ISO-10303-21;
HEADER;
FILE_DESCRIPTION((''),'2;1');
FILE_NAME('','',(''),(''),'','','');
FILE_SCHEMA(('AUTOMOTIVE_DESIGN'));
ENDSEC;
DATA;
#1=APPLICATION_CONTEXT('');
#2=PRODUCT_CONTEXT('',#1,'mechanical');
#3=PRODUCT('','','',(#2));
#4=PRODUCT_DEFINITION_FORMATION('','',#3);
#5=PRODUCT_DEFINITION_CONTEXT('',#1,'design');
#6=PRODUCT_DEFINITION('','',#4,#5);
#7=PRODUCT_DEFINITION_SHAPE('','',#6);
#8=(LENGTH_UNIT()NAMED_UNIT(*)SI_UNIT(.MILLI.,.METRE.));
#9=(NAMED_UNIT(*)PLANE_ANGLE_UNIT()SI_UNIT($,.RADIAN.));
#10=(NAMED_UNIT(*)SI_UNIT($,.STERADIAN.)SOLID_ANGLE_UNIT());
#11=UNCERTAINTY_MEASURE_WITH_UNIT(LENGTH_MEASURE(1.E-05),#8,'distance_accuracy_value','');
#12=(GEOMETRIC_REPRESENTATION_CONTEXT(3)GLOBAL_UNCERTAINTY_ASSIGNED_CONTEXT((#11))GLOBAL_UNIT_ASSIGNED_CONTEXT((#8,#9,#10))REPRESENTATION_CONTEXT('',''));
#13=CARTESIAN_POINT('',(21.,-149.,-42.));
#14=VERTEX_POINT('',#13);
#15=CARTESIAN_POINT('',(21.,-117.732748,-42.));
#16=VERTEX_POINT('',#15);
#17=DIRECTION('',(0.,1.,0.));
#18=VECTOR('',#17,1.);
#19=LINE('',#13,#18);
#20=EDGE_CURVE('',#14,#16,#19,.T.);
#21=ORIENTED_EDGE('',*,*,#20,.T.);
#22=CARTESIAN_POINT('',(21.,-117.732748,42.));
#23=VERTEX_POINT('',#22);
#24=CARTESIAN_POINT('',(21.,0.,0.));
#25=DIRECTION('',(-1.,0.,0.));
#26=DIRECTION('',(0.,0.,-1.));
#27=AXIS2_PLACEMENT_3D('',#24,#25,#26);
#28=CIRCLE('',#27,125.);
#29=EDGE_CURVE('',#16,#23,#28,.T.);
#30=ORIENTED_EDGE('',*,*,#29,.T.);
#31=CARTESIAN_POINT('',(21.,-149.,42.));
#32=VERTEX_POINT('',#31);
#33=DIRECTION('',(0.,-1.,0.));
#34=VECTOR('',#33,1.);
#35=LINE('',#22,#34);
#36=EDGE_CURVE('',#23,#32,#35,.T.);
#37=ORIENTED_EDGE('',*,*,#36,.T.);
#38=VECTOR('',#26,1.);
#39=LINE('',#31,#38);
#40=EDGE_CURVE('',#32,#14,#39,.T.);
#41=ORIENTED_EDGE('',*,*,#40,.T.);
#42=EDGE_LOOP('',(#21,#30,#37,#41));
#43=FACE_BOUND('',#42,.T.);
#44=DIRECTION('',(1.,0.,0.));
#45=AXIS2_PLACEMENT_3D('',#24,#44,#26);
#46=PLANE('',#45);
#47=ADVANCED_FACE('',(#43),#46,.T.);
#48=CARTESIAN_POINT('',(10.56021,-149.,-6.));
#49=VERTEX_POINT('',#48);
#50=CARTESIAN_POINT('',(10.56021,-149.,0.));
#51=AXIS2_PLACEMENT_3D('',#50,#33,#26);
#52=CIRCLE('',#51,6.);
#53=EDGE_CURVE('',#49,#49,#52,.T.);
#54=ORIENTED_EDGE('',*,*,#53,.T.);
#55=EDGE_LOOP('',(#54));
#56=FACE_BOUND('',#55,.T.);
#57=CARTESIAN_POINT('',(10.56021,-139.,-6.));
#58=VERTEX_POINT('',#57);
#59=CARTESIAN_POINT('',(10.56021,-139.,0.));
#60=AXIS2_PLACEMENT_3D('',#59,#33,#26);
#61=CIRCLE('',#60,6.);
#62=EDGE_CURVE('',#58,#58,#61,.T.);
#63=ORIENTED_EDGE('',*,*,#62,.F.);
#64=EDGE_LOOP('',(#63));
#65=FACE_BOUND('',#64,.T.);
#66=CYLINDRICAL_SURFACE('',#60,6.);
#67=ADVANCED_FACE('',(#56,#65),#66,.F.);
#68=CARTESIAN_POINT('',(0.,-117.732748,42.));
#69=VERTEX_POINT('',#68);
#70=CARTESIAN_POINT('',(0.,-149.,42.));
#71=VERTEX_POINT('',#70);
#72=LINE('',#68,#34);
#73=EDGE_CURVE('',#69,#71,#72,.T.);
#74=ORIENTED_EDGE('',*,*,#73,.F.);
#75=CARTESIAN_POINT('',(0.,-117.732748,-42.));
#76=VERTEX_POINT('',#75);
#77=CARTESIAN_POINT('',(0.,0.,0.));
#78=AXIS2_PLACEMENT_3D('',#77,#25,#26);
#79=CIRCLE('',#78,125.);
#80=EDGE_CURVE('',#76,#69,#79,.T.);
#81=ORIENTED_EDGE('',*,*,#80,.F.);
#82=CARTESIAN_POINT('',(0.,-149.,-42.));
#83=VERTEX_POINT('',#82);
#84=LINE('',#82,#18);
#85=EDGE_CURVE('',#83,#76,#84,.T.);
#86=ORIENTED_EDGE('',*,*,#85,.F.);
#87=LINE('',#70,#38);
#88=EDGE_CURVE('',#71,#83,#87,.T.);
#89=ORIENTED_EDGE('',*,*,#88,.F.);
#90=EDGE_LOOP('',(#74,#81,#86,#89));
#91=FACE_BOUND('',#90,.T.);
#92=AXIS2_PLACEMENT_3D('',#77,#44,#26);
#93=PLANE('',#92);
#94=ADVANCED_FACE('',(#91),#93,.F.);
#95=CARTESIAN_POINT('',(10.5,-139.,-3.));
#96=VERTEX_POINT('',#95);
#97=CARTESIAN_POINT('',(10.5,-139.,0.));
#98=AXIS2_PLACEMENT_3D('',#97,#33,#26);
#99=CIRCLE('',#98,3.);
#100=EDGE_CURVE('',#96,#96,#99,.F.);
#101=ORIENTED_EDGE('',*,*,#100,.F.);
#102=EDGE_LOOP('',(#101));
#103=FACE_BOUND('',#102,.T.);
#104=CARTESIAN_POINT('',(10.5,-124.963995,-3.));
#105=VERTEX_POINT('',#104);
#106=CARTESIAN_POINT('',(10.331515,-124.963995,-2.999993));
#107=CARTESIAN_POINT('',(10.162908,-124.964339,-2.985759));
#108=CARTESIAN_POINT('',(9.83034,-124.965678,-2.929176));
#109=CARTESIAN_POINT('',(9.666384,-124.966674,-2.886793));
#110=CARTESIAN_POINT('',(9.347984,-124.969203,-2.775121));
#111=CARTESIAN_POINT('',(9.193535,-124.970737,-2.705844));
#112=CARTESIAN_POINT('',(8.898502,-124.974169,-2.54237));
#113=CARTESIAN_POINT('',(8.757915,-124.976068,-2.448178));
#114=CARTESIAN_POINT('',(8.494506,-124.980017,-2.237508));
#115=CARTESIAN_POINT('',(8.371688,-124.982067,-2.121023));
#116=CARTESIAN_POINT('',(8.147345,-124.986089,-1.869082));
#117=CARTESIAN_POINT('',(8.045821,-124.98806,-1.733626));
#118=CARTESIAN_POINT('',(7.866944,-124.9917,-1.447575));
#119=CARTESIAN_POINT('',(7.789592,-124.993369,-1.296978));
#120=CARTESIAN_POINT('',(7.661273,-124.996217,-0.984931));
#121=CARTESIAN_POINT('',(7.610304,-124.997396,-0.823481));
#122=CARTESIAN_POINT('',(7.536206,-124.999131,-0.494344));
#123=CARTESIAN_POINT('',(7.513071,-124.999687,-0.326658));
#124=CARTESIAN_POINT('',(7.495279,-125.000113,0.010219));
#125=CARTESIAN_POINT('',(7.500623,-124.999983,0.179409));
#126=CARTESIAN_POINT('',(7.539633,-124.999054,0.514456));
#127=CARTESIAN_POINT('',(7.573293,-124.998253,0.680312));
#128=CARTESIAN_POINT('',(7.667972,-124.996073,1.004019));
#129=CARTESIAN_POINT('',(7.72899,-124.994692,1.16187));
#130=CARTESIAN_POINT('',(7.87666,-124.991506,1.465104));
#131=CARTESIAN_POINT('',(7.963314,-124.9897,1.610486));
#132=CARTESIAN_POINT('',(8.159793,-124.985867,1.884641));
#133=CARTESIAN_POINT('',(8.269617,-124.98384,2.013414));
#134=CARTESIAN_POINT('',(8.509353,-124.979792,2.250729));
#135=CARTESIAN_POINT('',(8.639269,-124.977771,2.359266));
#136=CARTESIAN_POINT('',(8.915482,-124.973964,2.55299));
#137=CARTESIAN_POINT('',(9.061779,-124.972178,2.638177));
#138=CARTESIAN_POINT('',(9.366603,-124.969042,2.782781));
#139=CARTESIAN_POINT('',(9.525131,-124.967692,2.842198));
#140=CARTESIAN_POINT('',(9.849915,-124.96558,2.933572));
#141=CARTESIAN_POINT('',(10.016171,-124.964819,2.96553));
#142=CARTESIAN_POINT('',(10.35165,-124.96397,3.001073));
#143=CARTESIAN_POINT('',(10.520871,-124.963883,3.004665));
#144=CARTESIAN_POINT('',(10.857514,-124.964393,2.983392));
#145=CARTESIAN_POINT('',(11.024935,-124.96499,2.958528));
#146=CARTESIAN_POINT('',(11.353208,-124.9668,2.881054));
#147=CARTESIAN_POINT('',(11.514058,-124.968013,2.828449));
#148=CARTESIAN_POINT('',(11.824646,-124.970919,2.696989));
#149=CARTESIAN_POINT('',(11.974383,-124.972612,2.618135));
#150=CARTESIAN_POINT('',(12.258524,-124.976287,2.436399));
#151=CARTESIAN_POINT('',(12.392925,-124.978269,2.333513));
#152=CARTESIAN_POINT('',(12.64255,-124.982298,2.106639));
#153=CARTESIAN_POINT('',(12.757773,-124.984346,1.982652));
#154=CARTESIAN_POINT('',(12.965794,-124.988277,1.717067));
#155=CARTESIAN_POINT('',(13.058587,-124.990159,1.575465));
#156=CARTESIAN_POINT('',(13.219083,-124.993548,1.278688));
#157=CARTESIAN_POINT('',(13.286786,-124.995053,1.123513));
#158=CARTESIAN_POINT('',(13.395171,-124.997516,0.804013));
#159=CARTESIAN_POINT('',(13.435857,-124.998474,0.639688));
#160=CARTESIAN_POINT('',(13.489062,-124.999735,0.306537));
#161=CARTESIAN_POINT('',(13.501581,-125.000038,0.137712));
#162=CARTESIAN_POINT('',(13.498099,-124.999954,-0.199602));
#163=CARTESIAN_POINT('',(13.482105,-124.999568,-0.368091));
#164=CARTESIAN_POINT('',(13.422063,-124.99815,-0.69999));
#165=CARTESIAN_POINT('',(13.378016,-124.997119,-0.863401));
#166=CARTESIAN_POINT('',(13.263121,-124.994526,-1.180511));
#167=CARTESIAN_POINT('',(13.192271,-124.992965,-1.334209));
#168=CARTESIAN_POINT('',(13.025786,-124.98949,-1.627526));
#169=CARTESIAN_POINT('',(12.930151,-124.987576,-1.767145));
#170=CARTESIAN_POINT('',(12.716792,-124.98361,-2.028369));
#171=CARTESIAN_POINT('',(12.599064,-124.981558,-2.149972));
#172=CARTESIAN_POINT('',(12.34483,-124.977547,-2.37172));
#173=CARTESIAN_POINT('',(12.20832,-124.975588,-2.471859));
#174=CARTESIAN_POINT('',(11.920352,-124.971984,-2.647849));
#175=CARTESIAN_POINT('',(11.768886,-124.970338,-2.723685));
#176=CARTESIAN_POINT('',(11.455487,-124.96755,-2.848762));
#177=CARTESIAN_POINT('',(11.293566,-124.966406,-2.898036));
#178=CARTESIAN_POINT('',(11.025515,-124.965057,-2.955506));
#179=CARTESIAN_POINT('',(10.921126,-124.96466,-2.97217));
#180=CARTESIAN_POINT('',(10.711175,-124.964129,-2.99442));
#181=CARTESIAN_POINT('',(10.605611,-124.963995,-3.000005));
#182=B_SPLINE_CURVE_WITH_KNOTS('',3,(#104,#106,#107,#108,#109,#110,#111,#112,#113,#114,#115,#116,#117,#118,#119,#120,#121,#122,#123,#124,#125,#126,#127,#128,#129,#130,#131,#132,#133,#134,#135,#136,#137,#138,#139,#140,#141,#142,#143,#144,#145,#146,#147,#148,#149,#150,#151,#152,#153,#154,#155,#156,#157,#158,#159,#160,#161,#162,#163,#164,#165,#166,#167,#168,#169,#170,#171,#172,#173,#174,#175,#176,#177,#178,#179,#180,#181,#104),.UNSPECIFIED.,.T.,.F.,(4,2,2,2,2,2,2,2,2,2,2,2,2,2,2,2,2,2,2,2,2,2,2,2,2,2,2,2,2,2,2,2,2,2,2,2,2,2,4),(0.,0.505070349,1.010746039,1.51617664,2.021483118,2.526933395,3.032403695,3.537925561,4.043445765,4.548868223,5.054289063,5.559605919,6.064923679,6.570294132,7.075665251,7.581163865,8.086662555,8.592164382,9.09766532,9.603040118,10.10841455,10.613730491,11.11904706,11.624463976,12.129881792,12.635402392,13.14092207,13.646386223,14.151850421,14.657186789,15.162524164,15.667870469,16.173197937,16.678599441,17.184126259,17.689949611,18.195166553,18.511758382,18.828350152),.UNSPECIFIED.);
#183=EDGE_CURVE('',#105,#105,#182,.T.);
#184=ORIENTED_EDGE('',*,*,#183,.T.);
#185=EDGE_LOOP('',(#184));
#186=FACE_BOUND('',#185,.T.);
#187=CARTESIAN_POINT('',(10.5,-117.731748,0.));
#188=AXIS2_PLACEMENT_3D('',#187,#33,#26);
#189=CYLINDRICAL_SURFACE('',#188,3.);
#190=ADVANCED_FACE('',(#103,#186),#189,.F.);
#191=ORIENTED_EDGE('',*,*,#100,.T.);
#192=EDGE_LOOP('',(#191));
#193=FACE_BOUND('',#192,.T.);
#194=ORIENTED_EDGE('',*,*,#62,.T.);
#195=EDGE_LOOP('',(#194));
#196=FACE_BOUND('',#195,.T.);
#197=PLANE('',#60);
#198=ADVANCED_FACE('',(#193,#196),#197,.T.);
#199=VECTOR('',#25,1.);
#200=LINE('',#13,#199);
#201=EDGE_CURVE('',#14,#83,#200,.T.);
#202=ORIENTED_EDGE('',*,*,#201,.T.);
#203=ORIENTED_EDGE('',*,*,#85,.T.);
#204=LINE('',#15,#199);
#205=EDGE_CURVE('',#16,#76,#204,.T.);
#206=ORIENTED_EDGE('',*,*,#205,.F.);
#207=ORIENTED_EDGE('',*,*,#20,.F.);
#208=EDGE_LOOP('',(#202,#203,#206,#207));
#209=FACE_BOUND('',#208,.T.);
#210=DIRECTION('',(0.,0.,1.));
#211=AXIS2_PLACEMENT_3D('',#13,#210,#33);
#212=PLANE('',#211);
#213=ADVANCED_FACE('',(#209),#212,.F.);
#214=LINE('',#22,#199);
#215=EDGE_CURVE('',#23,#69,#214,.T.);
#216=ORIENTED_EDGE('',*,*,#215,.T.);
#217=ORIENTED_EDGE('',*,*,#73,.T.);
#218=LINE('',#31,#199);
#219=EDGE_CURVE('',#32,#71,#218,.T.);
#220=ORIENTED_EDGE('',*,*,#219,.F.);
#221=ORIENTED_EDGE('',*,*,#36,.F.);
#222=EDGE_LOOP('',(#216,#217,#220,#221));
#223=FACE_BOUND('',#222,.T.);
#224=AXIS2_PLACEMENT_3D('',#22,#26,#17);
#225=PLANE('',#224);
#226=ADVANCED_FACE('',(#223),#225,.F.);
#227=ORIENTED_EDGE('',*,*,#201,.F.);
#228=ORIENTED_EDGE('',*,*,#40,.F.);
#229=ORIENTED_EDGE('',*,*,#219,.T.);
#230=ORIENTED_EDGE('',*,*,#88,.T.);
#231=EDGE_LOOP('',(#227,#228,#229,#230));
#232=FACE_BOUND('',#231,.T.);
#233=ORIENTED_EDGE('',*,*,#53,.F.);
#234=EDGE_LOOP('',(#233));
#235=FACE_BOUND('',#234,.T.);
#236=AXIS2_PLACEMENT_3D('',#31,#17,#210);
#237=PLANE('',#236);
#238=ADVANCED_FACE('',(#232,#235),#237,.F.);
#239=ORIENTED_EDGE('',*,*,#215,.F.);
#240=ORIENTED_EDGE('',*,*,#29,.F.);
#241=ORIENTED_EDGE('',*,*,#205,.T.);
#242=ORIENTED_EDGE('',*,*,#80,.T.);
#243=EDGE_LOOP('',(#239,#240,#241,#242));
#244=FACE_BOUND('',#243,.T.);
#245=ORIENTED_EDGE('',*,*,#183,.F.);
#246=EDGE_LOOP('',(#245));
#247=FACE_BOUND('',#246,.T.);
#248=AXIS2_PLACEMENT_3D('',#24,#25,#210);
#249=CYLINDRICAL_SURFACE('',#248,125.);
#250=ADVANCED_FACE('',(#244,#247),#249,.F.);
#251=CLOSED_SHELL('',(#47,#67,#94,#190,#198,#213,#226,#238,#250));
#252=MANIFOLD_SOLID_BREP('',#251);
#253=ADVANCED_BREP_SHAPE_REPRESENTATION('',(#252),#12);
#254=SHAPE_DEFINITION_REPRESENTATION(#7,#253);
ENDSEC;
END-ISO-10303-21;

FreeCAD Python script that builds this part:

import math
import FreeCAD as App
import Part
import Sketcher

doc = App.newDocument("Part")
params = doc.addObject("Spreadsheet::Sheet", "Params")
for row, (alias, value) in enumerate([
    ("sketch1_radius", "125 mm"),
    ("sketch1_height", "84 mm"),
    ("pad1_length", "21 mm"),
    ("sketch2_diameter", "6 mm"),
    ("sketch3_diameter", "12 mm"),
    ("pocket2_length", "10 mm"),
], start=1):
    params.set(f"A{row}", alias)
    params.set(f"B{row}", "=" + value)
    params.setAlias(f"B{row}", alias)

body = doc.addObject("PartDesign::Body", "Body")

# Sketch on YZ plane
sketch1 = body.newObject("Sketcher::SketchObject", "Sketch")
sketch1.AttachmentSupport = (doc.getObject("YZ_Plane"), [""])
sketch1.MapMode = "FlatFace"
sketch1.addGeometry([
    Part.LineSegment(App.Vector(-117.732748, 42, 0), App.Vector(-149, 42, 0)),
    Part.LineSegment(App.Vector(-149, 42, 0), App.Vector(-149, -42, 0)),
    Part.LineSegment(App.Vector(-149, -42, 0), App.Vector(-117.732748, -42, 0)),
    Part.ArcOfCircle(Part.Circle(App.Vector(0, 0, 0), App.Vector(0, 0, 1), 125), math.radians(160.366641), math.radians(199.633359)),
], False)
sketch1.addConstraint([
    Sketcher.Constraint("Coincident", 0, 2, 1, 1),
    Sketcher.Constraint("Coincident", 1, 2, 2, 1),
    Sketcher.Constraint("Coincident", 2, 2, 3, 2),
    Sketcher.Constraint("Coincident", 3, 1, 0, 1),
    Sketcher.Constraint("Horizontal", 0),
    Sketcher.Constraint("Vertical", 1),
    Sketcher.Constraint("Horizontal", 2),
    Sketcher.Constraint("Coincident", 3, 3, -1, 1),
    Sketcher.Constraint("Vertical", 2, 2, 3, 1),
    Sketcher.Constraint("Radius", 3, 125.0),
    Sketcher.Constraint("DistanceY", 1, 2, 1, 1, 84.0),
    Sketcher.Constraint("DistanceX", 0, 2, -1, 1, 149.0),
])
sketch1.setExpression("Constraints[9]", "Params.sketch1_radius")
sketch1.setExpression("Constraints[10]", "Params.sketch1_height")
pad1 = body.newObject("PartDesign::Pad", "Pad")
pad1.Profile = sketch1
pad1.setExpression("Length", "Params.pad1_length")

# Sketch on XZ plane
sketch2 = body.newObject("Sketcher::SketchObject", "Sketch001")
sketch2.AttachmentSupport = (doc.getObject("XZ_Plane"), [""])
sketch2.MapMode = "FlatFace"
sketch2.AttachmentOffset = App.Placement(App.Vector(0, 0, 149), App.Rotation())
sketch2.addGeometry(Part.Circle(App.Vector(10.5, 0, 0), App.Vector(0, 0, 1), 3), False)
sketch2.addConstraint([
    Sketcher.Constraint("PointOnObject", 0, 3, -1),
    Sketcher.Constraint("Diameter", 0, 6.0),
    Sketcher.Constraint("DistanceX", -1, 1, 0, 3, 10.5),
])
sketch2.setExpression("Constraints[1]", "Params.sketch2_diameter")
pocket1 = body.newObject("PartDesign::Pocket", "Pocket")
pocket1.Profile = sketch2
pocket1.Type = "UpToFirst"

# Sketch on XZ plane
sketch3 = body.newObject("Sketcher::SketchObject", "Sketch002")
sketch3.AttachmentSupport = (doc.getObject("XZ_Plane"), [""])
sketch3.MapMode = "FlatFace"
sketch3.AttachmentOffset = App.Placement(App.Vector(0, 0, 149), App.Rotation())
sketch3.addGeometry(Part.Circle(App.Vector(10.56021, 0, 0), App.Vector(0, 0, 1), 6), False)
sketch3.addConstraint([
    Sketcher.Constraint("PointOnObject", 0, 3, -1),
    Sketcher.Constraint("Diameter", 0, 12.0),
    Sketcher.Constraint("DistanceX", -1, 1, 0, 3, 10.56021),
])
sketch3.setExpression("Constraints[1]", "Params.sketch3_diameter")
pocket2 = body.newObject("PartDesign::Pocket", "Pocket001")
pocket2.Profile = sketch3
pocket2.setExpression("Length", "Params.pocket2_length")

doc.recompute()
